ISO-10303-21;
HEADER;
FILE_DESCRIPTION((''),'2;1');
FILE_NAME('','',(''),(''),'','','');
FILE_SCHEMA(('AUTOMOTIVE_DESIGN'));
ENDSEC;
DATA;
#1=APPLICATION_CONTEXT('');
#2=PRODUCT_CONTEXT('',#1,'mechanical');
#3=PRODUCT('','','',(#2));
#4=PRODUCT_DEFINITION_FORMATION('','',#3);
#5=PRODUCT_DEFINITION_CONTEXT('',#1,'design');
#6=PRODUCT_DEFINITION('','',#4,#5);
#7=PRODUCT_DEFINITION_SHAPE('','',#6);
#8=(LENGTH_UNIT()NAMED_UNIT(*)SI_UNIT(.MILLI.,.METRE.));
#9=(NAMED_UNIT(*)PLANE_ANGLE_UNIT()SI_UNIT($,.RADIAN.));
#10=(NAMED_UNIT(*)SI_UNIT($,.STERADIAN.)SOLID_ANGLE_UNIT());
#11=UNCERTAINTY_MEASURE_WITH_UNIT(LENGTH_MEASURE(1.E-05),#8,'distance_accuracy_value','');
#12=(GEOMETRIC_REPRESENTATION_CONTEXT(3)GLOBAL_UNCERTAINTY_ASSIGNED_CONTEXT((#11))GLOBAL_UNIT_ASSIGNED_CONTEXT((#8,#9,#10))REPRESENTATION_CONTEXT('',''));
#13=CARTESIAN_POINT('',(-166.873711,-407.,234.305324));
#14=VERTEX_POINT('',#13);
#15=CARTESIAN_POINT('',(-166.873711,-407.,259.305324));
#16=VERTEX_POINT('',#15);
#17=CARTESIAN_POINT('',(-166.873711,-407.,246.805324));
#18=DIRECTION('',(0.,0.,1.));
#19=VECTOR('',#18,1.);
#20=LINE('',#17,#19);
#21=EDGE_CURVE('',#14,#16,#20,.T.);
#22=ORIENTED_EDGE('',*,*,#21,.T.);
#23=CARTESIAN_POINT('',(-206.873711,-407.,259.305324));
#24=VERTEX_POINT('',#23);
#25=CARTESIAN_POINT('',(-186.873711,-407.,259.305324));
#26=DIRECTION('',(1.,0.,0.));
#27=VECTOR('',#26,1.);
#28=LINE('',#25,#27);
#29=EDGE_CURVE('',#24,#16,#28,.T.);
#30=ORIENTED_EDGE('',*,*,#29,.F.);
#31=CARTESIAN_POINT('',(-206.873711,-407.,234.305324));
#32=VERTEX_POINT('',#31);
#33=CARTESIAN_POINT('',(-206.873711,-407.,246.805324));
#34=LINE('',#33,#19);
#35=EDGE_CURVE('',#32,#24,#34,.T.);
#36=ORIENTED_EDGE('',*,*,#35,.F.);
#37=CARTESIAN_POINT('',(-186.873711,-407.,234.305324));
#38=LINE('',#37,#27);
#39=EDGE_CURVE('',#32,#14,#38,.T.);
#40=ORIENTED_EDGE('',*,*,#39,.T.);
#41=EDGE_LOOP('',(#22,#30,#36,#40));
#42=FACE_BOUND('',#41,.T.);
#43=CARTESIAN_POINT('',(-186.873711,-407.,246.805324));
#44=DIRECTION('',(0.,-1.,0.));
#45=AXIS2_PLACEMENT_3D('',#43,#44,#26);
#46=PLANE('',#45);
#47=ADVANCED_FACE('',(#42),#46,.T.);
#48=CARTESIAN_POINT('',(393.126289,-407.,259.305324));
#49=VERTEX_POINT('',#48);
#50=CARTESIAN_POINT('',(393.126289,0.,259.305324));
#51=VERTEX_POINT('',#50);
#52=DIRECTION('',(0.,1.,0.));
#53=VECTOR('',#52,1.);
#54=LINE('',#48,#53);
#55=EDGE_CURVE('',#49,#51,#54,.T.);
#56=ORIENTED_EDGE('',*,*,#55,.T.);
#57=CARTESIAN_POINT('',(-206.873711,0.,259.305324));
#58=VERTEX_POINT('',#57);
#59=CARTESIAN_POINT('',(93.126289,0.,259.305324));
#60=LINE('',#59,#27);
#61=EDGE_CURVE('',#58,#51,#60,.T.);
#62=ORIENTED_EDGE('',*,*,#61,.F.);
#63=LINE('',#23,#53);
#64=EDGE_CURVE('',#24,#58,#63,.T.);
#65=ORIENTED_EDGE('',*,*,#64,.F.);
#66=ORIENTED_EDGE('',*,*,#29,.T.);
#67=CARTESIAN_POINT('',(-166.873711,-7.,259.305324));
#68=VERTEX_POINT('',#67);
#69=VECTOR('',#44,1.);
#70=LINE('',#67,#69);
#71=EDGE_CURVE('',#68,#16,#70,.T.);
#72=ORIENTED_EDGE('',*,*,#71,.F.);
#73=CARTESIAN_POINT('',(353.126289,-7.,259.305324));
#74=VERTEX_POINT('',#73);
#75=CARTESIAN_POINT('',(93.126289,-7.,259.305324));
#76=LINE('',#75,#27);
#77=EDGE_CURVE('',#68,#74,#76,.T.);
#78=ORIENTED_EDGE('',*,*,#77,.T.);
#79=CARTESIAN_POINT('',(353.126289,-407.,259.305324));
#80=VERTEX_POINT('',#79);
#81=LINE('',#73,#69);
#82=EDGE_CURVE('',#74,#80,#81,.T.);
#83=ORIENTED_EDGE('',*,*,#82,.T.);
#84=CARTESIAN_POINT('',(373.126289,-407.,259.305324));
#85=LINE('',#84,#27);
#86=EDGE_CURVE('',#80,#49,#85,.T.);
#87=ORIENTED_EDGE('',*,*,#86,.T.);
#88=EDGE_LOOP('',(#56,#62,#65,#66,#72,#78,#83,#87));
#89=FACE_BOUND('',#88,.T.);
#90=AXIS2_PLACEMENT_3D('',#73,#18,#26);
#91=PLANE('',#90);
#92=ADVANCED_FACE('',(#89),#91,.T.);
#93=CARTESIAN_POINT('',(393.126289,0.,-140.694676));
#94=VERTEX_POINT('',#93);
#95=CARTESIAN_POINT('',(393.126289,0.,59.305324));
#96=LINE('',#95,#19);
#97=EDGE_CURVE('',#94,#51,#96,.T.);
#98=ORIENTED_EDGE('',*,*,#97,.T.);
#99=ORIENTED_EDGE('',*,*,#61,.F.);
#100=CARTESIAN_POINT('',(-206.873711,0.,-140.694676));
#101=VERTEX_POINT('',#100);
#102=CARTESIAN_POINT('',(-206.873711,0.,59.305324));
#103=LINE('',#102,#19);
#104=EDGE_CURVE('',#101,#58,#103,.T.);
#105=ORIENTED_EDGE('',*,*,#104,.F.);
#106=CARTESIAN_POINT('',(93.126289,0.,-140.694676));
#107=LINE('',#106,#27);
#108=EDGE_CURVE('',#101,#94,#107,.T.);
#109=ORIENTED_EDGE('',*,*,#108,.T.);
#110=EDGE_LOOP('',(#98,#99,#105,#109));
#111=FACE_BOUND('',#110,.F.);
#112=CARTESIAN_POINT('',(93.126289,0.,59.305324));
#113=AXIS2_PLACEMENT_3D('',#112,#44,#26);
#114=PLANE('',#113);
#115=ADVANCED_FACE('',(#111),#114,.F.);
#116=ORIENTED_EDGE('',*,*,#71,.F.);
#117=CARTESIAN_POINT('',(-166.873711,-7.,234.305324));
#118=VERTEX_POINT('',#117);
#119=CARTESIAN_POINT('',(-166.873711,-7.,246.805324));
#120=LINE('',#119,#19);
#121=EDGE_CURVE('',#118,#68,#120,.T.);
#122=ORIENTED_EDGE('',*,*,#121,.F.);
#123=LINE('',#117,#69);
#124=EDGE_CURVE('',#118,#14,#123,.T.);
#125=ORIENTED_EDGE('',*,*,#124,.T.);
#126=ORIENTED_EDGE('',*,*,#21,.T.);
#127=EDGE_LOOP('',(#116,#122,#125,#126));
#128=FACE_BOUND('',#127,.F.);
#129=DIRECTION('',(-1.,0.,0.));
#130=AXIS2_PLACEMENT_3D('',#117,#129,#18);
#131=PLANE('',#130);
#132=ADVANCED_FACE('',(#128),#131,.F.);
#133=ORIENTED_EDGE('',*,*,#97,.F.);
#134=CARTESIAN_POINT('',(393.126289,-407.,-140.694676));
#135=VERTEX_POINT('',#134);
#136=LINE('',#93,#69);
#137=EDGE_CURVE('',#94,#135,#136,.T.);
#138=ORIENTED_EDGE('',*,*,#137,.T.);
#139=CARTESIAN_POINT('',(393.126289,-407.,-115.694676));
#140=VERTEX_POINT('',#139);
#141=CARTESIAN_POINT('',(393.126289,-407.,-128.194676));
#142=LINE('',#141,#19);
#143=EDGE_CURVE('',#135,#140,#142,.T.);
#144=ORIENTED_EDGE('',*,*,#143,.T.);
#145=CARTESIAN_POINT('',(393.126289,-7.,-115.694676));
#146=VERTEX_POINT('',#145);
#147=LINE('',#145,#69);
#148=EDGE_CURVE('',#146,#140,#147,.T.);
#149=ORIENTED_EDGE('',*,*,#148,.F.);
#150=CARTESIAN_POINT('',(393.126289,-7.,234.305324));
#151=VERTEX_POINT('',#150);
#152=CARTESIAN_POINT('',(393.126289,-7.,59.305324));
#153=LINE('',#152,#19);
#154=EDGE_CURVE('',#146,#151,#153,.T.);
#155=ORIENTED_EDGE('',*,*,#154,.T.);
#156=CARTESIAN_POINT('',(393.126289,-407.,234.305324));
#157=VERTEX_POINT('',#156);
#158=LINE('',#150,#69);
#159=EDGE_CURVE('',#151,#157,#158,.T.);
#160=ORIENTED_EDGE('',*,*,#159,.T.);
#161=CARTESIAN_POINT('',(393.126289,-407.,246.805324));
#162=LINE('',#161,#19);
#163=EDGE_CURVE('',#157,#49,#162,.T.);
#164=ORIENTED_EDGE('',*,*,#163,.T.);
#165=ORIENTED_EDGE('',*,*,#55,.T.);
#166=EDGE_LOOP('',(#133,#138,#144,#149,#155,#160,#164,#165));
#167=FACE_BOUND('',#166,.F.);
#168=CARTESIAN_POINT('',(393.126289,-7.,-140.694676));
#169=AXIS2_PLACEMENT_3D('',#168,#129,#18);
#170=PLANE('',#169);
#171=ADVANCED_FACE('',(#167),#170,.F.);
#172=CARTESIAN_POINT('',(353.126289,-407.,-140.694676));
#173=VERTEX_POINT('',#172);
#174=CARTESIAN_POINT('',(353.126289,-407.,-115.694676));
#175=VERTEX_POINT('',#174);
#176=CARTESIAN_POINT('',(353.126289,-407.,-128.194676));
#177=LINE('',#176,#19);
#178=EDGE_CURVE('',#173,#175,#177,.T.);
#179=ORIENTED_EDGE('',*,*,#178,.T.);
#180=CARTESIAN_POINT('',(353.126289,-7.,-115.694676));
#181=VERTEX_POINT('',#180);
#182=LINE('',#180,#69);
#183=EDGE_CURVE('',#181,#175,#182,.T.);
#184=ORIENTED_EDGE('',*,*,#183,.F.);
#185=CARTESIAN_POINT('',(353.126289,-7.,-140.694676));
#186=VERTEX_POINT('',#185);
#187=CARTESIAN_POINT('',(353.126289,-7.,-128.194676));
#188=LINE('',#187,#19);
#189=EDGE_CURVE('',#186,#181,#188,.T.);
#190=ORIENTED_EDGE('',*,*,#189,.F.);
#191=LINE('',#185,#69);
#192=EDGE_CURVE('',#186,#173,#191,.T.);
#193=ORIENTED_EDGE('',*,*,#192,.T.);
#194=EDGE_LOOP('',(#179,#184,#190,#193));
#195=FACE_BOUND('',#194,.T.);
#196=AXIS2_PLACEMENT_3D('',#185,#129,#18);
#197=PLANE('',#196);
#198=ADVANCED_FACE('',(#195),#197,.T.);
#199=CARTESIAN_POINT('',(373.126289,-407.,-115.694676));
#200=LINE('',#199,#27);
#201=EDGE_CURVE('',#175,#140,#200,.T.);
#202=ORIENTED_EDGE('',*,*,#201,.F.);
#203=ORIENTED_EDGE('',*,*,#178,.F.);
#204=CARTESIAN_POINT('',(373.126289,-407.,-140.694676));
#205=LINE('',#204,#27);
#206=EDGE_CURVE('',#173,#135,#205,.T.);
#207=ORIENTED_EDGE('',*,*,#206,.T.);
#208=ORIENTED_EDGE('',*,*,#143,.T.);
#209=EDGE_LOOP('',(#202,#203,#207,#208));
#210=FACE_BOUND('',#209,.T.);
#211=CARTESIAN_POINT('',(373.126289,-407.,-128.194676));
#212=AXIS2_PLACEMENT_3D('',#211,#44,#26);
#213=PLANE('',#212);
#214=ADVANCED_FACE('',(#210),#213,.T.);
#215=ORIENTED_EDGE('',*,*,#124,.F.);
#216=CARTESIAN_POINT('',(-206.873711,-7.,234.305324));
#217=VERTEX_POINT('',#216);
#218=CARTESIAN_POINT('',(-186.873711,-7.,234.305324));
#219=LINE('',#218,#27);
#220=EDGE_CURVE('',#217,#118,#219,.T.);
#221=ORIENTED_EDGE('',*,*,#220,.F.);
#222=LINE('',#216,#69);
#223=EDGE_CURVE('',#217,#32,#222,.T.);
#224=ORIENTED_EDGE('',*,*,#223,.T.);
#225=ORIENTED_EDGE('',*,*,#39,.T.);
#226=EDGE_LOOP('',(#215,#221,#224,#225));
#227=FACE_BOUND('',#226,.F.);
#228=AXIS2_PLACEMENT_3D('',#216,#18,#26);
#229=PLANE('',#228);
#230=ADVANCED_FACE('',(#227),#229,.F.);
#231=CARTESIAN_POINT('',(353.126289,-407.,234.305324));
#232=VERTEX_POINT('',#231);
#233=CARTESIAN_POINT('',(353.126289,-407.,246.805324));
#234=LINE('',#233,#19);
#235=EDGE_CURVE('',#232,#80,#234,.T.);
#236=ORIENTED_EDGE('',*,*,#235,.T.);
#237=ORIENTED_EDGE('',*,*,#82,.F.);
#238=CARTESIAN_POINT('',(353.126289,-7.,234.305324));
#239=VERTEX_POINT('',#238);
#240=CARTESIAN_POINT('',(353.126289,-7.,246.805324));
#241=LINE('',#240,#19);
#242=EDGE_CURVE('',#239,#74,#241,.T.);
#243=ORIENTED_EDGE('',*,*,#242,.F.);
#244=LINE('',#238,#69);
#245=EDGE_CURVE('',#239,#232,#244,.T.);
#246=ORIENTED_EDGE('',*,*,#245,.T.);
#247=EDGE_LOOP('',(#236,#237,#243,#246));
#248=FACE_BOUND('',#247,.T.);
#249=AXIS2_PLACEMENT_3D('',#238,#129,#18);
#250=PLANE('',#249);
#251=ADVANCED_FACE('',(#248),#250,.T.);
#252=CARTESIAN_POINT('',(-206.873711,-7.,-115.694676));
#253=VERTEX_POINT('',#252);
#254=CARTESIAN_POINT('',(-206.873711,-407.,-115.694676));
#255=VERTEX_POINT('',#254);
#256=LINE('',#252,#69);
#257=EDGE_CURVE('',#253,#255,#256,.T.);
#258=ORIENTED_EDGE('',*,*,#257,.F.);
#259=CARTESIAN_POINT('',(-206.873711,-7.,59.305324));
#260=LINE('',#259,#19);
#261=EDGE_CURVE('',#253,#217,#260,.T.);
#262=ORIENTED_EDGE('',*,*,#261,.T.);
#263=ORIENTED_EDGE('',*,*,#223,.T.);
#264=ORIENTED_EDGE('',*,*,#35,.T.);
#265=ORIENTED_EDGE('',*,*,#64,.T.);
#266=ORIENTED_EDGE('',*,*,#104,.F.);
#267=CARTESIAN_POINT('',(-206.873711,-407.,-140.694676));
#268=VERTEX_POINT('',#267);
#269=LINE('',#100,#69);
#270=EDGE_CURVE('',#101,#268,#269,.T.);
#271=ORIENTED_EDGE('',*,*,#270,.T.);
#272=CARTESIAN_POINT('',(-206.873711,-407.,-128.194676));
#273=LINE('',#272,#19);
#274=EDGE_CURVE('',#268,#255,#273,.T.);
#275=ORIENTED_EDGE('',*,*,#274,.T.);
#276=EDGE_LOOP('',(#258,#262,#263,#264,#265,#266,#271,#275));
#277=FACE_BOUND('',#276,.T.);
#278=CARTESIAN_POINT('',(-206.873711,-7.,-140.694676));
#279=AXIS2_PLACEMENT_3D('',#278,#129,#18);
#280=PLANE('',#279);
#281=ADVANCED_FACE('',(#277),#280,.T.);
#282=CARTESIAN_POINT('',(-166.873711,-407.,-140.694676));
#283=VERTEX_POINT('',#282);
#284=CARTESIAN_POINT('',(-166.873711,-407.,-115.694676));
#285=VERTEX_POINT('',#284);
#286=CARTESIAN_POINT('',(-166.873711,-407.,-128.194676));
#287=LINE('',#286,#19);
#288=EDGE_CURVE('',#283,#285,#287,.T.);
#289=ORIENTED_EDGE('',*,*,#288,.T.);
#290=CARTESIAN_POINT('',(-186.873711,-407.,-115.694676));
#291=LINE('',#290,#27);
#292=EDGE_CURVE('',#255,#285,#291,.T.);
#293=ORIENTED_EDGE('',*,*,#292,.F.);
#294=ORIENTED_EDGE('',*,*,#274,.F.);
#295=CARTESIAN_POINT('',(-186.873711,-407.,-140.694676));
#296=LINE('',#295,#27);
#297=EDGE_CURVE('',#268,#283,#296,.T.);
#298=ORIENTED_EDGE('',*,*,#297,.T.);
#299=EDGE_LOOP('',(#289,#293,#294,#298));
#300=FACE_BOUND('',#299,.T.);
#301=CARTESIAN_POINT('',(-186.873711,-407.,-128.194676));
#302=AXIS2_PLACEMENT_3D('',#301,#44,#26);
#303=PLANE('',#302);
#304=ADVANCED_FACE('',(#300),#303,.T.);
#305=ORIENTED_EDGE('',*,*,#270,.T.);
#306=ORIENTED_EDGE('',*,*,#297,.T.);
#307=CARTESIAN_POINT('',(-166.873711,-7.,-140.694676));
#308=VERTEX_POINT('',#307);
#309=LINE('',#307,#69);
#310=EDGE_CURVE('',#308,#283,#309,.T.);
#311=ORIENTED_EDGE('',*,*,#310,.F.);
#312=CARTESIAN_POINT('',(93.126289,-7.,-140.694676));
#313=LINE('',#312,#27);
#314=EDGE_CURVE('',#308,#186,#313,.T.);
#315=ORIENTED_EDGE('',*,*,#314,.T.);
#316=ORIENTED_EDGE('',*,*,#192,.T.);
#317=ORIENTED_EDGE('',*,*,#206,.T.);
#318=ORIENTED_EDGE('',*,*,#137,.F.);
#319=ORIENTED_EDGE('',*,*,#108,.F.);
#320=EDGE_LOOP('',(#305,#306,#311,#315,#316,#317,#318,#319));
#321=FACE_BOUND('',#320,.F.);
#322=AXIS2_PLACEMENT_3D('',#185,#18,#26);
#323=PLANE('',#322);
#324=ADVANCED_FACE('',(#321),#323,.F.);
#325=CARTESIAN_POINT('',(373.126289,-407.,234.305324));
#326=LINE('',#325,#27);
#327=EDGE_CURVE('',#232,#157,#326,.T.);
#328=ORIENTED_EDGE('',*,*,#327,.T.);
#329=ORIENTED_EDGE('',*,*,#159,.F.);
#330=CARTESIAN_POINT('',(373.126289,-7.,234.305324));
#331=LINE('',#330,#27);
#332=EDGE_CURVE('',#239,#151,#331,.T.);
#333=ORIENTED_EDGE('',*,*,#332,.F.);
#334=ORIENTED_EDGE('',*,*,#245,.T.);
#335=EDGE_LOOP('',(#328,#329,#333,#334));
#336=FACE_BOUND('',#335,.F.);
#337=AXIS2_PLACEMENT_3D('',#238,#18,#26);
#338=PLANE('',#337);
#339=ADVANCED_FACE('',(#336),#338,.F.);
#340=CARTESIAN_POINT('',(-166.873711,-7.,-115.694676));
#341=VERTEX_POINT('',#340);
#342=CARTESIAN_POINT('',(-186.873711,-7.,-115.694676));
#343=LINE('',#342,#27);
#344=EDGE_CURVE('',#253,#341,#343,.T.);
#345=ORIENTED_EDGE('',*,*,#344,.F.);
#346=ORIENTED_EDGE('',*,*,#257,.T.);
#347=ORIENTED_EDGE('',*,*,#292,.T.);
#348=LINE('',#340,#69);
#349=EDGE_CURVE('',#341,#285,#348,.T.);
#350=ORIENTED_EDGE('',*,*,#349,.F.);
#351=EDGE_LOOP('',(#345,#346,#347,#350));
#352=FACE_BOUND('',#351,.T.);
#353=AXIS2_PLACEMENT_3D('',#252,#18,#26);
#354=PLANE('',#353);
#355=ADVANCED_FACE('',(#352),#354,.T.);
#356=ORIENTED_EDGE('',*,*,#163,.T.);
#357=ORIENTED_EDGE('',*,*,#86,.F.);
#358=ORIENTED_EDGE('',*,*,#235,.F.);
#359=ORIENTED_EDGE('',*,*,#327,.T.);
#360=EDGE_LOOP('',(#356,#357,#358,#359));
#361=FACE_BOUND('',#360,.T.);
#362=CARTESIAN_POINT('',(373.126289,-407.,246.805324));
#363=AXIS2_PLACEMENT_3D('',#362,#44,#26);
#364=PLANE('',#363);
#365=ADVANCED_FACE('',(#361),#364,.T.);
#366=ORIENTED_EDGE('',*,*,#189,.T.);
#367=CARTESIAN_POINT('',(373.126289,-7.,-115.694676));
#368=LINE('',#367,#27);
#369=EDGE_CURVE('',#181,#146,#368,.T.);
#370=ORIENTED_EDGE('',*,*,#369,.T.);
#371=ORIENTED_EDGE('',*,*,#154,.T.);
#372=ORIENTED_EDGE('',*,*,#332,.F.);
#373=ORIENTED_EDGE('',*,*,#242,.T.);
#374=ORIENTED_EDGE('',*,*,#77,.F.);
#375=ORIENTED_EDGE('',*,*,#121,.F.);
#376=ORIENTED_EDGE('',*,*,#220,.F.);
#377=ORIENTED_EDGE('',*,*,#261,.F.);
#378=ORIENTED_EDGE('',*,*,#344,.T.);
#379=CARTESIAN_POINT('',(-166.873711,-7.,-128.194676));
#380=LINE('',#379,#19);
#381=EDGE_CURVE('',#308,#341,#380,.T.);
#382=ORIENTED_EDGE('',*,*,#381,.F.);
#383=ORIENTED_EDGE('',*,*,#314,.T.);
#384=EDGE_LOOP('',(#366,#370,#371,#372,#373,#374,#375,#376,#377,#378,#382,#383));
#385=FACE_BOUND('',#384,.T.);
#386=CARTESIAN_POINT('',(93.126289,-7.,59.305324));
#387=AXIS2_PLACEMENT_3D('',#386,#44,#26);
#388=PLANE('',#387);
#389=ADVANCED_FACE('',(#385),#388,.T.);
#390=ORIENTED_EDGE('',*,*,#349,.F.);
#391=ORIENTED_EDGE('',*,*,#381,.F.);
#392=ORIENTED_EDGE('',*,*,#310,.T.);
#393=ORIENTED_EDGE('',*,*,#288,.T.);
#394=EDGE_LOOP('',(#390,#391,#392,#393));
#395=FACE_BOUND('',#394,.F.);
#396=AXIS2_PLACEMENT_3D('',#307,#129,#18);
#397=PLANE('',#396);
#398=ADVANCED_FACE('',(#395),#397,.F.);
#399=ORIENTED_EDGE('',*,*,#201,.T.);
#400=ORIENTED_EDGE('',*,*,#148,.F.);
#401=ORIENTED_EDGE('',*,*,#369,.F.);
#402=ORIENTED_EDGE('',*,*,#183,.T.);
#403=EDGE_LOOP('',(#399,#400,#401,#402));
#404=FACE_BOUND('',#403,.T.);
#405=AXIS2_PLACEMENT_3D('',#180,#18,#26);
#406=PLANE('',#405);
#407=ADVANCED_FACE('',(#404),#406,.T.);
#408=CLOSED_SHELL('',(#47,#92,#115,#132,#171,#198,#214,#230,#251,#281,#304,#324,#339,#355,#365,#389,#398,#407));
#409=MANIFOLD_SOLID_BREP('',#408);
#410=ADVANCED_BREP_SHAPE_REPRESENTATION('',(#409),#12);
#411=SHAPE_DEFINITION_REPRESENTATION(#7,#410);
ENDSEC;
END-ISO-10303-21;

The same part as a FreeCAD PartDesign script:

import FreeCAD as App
import Part
import Sketcher

V = App.Vector


def add_polygon(sketch, points):
    """Adds a closed chain of lines whose ends are joined by coincident constraints."""
    first, n = sketch.GeometryCount, len(points)
    for a, b in zip(points, points[1:] + points[:1]):
        sketch.addGeometry(Part.LineSegment(App.Vector(*a, 0), App.Vector(*b, 0)), False)
    for i in range(n):
        sketch.addConstraint(Sketcher.Constraint("Coincident", first + i, 2, first + (i + 1) % n, 1))

doc = App.newDocument("Part")
body = doc.addObject("PartDesign::Body", "Body")

# Sketch on XZ plane
sketch1 = body.newObject("Sketcher::SketchObject", "Sketch")
sketch1.AttachmentSupport = (doc.getObject("XZ_Plane"), [""])
sketch1.MapMode = "FlatFace"
add_polygon(sketch1, [(-207, 259), (-207, -141), (393, -141), (393, 259)])  # lines 0-3
sketch1.addConstraint([
    Sketcher.Constraint("Vertical", 0),
    Sketcher.Constraint("Horizontal", 1),
    Sketcher.Constraint("Vertical", 2),
    Sketcher.Constraint("Horizontal", 3),
    Sketcher.Constraint("DistanceX", 1, 1, 1, 2, 600.0),
    Sketcher.Constraint("DistanceY", 0, 2, 0, 1, 400.0),
    Sketcher.Constraint("DistanceX", 0, 2, -1, 1, 206.873711),
    Sketcher.Constraint("DistanceY", 0, 2, -1, 1, 140.694676),
])
pad1 = body.newObject("PartDesign::Pad", "Pad")
pad1.Profile = sketch1
pad1.Length = 7

# Sketch on XZ plane
sketch2 = body.newObject("Sketcher::SketchObject", "Sketch001")
sketch2.AttachmentSupport = (doc.getObject("XZ_Plane"), [""])
sketch2.MapMode = "FlatFace"
sketch2.AttachmentOffset = App.Placement(V(0, 0, 7), App.Rotation())
add_polygon(sketch2, [(-207, 259), (-207, 234), (-167, 234), (-167, 259)])  # lines 0-3
sketch2.addConstraint([
    Sketcher.Constraint("Vertical", 0),
    Sketcher.Constraint("Horizontal", 1),
    Sketcher.Constraint("Vertical", 2),
    Sketcher.Constraint("Horizontal", 3),
    Sketcher.Constraint("DistanceX", 1, 1, 1, 2, 40.0),
    Sketcher.Constraint("DistanceY", 0, 2, 0, 1, 25.0),
    Sketcher.Constraint("DistanceX", 0, 2, -1, 1, 206.873711),
    Sketcher.Constraint("DistanceY", -1, 1, 0, 2, 234.305324),
])
pad2 = body.newObject("PartDesign::Pad", "Pad001")
pad2.Profile = sketch2
pad2.Length = 400

# Sketch on XZ plane
sketch3 = body.newObject("Sketcher::SketchObject", "Sketch002")
sketch3.AttachmentSupport = (doc.getObject("XZ_Plane"), [""])
sketch3.MapMode = "FlatFace"
sketch3.AttachmentOffset = App.Placement(V(0, 0, 7), App.Rotation())
add_polygon(sketch3, [(-207, -116), (-207, -141), (-167, -141), (-167, -116)])  # lines 0-3
sketch3.addConstraint([
    Sketcher.Constraint("Vertical", 0),
    Sketcher.Constraint("Horizontal", 1),
    Sketcher.Constraint("Vertical", 2),
    Sketcher.Constraint("Horizontal", 3),
    Sketcher.Constraint("DistanceX", 1, 1, 1, 2, 40.0),
    Sketcher.Constraint("DistanceY", 0, 2, 0, 1, 25.0),
    Sketcher.Constraint("DistanceX", 0, 2, -1, 1, 206.873711),
    Sketcher.Constraint("DistanceY", 0, 2, -1, 1, 140.694676),
])
pad3 = body.newObject("PartDesign::Pad", "Pad002")
pad3.Profile = sketch3
pad3.Length = 400

# Sketch on XZ plane
sketch4 = body.newObject("Sketcher::SketchObject", "Sketch003")
sketch4.AttachmentSupport = (doc.getObject("XZ_Plane"), [""])
sketch4.MapMode = "FlatFace"
sketch4.AttachmentOffset = App.Placement(V(0, 0, 7), App.Rotation())
add_polygon(sketch4, [(353, 259), (353, 234), (393, 234), (393, 259)])  # lines 0-3
sketch4.addConstraint([
    Sketcher.Constraint("Vertical", 0),
    Sketcher.Constraint("Horizontal", 1),
    Sketcher.Constraint("Vertical", 2),
    Sketcher.Constraint("Horizontal", 3),
    Sketcher.Constraint("DistanceX", 1, 1, 1, 2, 40.0),
    Sketcher.Constraint("DistanceY", 0, 2, 0, 1, 25.0),
    Sketcher.Constraint("DistanceX", -1, 1, 0, 2, 353.126289),
    Sketcher.Constraint("DistanceY", -1, 1, 0, 2, 234.305324),
])
pad4 = body.newObject("PartDesign::Pad", "Pad003")
pad4.Profile = sketch4
pad4.Length = 400

# Sketch on XZ plane
sketch5 = body.newObject("Sketcher::SketchObject", "Sketch004")
sketch5.AttachmentSupport = (doc.getObject("XZ_Plane"), [""])
sketch5.MapMode = "FlatFace"
sketch5.AttachmentOffset = App.Placement(V(0, 0, 7), App.Rotation())
add_polygon(sketch5, [(353, -116), (353, -141), (393, -141), (393, -116)])  # lines 0-3
sketch5.addConstraint([
    Sketcher.Constraint("Vertical", 0),
    Sketcher.Constraint("Horizontal", 1),
    Sketcher.Constraint("Vertical", 2),
    Sketcher.Constraint("Horizontal", 3),
    Sketcher.Constraint("DistanceX", 1, 1, 1, 2, 40.0),
    Sketcher.Constraint("DistanceY", 0, 2, 0, 1, 25.0),
    Sketcher.Constraint("DistanceX", -1, 1, 0, 2, 353.126289),
    Sketcher.Constraint("DistanceY", 0, 2, -1, 1, 140.694676),
])
pad5 = body.newObject("PartDesign::Pad", "Pad004")
pad5.Profile = sketch5
pad5.Length = 400

doc.recompute()
